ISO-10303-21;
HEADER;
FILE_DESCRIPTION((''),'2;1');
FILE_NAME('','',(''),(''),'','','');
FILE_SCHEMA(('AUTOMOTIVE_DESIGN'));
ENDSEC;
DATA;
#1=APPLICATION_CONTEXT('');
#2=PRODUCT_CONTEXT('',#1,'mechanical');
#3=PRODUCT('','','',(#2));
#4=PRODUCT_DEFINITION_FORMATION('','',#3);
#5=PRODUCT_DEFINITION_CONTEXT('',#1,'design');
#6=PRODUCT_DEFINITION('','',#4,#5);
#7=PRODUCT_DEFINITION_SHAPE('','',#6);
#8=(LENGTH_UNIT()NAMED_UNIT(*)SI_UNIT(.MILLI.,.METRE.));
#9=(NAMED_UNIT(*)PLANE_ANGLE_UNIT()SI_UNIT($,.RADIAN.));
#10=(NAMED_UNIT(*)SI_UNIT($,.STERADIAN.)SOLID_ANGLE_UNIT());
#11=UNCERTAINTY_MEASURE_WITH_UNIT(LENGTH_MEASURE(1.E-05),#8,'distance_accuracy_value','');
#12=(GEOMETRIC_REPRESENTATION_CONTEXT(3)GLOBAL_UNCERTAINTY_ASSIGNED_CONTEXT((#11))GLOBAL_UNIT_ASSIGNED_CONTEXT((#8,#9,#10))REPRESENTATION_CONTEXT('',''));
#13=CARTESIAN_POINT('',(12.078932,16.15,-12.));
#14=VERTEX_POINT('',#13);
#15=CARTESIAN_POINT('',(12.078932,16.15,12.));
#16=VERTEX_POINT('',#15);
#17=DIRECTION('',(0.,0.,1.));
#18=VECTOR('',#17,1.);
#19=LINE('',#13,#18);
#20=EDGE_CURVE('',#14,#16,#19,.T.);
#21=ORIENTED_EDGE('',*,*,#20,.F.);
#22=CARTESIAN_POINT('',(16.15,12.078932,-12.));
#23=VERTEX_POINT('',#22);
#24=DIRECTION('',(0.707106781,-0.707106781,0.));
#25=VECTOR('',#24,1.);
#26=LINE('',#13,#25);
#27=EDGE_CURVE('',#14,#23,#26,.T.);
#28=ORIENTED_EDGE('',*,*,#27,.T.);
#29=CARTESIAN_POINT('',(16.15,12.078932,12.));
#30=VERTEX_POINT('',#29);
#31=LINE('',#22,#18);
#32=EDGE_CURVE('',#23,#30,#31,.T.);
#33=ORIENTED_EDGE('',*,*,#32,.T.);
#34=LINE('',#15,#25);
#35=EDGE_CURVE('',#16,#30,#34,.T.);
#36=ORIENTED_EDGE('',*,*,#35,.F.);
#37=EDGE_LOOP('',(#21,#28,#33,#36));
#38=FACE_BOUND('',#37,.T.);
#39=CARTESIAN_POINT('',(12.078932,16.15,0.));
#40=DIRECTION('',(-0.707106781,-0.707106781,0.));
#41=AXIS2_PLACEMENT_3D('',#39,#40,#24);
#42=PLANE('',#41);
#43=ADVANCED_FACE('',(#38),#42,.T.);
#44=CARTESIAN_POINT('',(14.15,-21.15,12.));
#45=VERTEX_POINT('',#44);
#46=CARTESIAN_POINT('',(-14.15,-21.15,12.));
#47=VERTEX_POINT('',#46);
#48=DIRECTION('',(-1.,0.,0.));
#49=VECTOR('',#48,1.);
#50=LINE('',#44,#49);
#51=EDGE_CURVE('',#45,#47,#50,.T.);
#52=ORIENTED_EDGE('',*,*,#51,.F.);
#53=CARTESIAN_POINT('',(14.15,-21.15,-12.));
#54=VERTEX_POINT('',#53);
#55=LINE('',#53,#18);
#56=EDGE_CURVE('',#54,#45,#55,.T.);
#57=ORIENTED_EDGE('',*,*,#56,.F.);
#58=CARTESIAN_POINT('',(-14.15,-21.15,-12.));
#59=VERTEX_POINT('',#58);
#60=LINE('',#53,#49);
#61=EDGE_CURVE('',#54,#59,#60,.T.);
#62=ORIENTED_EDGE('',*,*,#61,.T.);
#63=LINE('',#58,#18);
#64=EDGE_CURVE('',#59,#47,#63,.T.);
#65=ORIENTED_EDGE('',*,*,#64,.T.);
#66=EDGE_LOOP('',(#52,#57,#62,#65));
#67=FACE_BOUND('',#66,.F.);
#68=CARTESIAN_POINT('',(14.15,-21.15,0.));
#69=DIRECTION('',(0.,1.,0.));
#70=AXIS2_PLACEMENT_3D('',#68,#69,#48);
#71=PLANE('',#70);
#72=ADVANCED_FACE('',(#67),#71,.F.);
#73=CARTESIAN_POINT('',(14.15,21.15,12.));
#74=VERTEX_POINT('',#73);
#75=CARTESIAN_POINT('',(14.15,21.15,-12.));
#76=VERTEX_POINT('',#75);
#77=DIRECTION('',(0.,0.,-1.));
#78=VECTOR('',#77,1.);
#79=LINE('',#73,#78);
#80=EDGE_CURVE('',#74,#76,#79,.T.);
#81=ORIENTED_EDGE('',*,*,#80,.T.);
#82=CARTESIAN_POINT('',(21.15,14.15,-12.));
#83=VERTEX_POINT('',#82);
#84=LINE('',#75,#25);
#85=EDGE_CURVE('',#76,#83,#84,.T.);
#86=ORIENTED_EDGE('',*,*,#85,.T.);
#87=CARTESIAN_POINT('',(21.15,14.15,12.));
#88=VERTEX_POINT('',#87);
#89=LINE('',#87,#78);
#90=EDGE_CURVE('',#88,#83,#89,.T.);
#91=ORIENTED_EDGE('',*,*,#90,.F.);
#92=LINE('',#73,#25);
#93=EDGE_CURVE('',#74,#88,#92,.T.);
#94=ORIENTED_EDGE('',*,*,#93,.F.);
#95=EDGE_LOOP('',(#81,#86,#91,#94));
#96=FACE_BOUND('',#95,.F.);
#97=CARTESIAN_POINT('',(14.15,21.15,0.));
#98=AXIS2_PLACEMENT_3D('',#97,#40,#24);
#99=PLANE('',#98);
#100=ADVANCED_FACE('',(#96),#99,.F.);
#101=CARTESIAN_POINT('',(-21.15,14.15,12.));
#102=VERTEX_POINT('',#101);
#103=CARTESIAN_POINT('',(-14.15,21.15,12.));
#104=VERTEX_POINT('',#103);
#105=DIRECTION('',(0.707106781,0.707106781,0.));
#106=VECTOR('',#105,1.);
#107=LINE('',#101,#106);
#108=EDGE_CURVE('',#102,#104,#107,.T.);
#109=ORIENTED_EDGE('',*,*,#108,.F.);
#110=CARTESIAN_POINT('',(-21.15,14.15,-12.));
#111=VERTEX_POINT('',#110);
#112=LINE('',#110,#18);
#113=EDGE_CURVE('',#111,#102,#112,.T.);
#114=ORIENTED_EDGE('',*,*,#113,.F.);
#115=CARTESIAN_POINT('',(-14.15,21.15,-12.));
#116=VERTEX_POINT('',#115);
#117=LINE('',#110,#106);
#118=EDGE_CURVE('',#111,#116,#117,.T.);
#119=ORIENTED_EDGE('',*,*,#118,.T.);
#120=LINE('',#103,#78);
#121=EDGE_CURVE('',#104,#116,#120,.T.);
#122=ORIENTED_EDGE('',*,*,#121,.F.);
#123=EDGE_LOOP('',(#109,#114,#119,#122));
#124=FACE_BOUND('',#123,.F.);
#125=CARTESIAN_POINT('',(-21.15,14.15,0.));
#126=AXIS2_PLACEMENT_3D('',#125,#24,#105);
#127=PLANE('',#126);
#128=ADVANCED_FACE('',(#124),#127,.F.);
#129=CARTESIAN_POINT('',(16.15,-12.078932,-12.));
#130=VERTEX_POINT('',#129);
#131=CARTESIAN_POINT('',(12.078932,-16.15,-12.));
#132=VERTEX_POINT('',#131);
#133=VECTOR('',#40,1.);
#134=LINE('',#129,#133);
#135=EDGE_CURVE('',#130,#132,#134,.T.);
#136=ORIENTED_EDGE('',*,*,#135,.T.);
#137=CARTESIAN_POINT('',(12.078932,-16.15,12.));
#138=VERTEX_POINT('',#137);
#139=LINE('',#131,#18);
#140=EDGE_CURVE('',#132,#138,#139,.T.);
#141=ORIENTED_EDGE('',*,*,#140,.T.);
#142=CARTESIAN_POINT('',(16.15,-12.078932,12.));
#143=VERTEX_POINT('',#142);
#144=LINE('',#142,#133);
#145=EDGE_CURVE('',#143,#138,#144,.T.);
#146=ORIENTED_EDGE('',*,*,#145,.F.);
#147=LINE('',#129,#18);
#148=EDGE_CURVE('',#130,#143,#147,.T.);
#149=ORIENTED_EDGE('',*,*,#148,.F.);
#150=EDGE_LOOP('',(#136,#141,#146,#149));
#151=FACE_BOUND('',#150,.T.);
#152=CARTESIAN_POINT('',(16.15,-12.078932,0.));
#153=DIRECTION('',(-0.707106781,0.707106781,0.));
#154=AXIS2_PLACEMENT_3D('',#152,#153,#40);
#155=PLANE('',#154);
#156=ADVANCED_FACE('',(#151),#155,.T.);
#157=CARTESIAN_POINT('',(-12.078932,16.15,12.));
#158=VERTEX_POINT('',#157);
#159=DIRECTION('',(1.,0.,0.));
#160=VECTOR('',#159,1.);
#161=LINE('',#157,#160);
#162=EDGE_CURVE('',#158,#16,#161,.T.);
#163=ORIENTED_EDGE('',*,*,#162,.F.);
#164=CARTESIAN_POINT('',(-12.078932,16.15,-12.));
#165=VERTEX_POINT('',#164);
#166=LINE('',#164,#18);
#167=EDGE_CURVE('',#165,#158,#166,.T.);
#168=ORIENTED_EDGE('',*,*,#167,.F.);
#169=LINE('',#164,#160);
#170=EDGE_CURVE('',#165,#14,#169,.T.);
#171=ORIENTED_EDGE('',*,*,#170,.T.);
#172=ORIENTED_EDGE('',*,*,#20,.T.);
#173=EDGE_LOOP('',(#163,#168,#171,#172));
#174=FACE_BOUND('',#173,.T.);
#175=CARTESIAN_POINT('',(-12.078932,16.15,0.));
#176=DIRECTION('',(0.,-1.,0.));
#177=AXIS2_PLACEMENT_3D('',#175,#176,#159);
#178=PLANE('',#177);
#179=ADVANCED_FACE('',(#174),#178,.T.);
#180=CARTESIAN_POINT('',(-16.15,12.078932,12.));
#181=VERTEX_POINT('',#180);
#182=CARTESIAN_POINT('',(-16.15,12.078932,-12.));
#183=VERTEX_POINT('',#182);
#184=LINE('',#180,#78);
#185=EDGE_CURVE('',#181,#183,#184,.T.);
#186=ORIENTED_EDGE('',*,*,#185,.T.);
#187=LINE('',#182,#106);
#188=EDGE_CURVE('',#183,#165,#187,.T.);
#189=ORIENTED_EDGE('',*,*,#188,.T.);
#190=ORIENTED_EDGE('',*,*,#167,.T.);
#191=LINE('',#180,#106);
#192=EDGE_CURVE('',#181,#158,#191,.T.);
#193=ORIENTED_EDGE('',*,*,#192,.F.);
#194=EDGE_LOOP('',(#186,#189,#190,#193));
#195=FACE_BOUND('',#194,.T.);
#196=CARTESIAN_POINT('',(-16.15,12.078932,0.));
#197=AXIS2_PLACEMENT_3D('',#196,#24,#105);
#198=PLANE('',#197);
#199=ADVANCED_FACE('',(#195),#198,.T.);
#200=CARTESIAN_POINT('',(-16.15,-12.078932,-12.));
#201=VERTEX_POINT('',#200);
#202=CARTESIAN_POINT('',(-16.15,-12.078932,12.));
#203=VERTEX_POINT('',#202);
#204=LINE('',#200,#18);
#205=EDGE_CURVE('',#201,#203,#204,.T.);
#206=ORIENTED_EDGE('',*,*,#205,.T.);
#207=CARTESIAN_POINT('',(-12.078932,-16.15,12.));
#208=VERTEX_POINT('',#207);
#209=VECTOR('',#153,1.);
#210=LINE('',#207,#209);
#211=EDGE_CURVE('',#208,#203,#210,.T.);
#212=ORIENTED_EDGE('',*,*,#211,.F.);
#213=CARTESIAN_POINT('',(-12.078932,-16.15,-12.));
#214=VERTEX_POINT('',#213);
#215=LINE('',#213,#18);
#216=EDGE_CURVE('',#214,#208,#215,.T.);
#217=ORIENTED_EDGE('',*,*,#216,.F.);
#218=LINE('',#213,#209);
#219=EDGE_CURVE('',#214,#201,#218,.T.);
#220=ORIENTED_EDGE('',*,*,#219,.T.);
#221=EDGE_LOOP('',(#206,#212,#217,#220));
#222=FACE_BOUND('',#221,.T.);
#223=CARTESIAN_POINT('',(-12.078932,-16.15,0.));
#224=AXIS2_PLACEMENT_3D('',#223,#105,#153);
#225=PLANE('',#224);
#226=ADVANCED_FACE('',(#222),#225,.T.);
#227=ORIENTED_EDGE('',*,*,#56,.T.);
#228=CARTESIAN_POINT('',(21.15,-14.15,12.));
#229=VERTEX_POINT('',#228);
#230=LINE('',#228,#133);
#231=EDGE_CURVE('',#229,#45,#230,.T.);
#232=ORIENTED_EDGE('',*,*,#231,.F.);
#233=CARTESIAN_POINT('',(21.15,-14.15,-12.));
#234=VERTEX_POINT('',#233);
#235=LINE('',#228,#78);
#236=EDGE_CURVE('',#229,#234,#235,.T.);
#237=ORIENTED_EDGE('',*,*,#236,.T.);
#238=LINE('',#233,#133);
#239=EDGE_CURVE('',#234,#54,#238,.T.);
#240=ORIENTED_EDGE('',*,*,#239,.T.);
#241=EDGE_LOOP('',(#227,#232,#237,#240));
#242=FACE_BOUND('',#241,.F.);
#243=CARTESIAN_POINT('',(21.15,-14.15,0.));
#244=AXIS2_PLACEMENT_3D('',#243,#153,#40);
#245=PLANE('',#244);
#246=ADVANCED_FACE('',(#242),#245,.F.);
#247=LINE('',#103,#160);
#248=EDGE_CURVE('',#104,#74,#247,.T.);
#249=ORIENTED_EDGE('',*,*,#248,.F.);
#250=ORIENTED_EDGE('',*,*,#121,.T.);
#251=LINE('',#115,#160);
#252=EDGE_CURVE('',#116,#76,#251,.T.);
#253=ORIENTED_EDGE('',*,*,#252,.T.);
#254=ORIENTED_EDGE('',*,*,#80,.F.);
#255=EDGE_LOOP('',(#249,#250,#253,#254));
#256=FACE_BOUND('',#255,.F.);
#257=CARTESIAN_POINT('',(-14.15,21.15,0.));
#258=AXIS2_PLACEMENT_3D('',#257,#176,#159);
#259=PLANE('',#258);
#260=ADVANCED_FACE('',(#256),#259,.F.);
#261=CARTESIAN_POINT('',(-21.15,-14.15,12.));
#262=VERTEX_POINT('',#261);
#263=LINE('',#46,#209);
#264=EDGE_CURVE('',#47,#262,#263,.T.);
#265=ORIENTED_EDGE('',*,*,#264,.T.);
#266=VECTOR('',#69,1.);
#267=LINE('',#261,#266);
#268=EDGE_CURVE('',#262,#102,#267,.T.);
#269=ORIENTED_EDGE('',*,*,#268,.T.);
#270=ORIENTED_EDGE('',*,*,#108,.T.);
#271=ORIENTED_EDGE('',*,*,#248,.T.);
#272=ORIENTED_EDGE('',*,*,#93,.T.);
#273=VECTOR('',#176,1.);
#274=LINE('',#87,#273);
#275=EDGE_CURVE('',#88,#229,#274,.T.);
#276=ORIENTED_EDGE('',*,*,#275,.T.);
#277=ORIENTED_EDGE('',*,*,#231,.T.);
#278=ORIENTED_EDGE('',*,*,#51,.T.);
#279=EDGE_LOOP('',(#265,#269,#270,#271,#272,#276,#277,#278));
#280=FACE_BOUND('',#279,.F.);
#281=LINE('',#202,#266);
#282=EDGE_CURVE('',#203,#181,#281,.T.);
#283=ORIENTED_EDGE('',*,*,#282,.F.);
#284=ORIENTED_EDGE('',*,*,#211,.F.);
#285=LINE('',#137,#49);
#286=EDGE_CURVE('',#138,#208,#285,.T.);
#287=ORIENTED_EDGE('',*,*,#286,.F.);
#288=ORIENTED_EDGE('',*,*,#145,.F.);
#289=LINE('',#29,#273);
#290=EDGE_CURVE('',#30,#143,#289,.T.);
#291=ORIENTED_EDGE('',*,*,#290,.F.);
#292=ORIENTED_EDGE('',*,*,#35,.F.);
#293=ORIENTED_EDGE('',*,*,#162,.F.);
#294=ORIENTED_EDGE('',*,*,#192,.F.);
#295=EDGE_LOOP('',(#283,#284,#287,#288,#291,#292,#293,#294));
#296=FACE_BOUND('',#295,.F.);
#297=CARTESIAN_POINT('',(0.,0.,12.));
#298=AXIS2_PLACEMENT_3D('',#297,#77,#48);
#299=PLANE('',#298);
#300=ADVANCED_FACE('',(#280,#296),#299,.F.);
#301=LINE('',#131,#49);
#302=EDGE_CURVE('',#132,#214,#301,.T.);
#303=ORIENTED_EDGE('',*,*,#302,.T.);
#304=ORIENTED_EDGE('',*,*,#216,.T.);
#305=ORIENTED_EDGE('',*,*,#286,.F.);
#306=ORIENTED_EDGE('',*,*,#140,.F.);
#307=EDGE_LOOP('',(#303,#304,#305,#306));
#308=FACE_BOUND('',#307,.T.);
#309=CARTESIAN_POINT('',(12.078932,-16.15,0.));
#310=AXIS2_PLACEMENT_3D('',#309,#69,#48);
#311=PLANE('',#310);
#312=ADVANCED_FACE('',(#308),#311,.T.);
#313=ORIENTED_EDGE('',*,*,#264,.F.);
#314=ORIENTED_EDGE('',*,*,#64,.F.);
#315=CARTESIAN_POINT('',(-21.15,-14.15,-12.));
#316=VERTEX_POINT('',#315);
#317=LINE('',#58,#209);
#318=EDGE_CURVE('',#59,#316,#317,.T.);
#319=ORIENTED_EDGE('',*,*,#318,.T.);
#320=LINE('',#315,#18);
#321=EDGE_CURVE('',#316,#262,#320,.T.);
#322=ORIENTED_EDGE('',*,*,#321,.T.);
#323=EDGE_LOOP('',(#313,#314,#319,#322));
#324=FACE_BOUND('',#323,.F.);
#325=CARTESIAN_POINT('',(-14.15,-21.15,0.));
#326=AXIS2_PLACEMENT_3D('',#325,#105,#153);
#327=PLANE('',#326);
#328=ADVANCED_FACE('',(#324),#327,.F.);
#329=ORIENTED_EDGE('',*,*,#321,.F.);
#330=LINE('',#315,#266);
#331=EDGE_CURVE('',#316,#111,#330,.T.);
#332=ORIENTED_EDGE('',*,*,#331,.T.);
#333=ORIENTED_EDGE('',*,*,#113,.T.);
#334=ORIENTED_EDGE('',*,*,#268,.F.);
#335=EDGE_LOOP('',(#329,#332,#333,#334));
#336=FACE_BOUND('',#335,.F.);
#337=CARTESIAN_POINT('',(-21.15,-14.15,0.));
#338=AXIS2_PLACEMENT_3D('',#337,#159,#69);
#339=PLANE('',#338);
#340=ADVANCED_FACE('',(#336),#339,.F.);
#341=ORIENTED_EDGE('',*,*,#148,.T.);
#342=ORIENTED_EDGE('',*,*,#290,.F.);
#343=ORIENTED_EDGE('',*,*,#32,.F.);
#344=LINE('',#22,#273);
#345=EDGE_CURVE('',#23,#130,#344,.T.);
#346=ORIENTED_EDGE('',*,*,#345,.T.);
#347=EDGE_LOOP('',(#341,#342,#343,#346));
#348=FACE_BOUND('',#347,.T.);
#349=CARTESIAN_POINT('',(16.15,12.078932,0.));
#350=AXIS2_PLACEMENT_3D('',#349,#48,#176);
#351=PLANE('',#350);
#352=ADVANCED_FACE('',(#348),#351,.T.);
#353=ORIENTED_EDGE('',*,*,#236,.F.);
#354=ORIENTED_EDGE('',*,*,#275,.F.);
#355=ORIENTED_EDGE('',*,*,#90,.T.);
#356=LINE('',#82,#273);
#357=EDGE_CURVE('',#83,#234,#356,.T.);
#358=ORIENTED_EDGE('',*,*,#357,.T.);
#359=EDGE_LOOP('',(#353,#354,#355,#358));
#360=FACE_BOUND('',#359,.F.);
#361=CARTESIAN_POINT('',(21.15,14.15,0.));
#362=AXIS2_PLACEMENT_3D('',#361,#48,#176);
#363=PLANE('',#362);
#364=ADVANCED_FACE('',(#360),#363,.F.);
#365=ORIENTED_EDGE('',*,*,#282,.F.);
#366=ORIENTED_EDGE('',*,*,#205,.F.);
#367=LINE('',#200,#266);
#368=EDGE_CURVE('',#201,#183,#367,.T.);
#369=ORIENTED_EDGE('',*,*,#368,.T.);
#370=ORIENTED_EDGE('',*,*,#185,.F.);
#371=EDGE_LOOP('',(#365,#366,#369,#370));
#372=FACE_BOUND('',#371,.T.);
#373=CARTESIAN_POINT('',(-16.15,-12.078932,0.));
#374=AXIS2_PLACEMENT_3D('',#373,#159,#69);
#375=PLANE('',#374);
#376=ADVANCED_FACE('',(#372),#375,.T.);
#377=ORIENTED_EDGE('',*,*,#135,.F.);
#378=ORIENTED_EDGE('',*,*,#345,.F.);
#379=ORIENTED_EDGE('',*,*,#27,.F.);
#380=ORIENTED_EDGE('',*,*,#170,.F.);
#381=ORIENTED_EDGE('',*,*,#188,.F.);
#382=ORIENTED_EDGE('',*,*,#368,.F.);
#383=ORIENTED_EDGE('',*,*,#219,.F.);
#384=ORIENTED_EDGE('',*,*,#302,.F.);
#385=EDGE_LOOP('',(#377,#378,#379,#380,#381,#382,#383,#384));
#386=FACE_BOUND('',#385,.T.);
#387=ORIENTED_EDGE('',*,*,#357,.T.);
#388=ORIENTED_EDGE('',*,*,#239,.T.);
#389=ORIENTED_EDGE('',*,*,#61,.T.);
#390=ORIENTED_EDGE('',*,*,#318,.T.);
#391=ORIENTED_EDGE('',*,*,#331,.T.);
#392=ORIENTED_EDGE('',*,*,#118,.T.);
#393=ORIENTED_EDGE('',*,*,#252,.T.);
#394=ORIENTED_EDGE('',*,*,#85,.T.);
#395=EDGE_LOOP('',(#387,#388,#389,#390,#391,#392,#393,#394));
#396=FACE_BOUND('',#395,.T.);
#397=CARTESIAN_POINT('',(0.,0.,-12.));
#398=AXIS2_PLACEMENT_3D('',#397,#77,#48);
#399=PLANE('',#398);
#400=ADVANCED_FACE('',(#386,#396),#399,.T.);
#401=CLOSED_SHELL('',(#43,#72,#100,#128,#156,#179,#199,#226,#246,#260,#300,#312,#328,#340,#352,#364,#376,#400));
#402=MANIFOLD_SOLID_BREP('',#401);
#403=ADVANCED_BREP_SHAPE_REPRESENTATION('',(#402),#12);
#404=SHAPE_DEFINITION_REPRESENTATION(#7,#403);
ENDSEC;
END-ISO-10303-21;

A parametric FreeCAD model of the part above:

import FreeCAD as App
import Part
import Sketcher

V = App.Vector
Q = App.Units.Quantity

doc = App.newDocument("Part")
body = doc.addObject("PartDesign::Body", "Body")

# Sketch on XY plane
sketch1 = body.newObject("Sketcher::SketchObject", "Sketch")
sketch1.AttachmentSupport = (doc.getObject("XY_Plane"), [""])
sketch1.MapMode = "FlatFace"
sketch1.addGeometry([
    Part.LineSegment(V(-14, 21, 0), V(-21, 14, 0)),  # 0
    Part.LineSegment(V(-21, 14, 0), V(-21, -14, 0)),  # 1
    Part.LineSegment(V(-21, -14, 0), V(-14, -21, 0)),  # 2
    Part.LineSegment(V(-14, -21, 0), V(14, -21, 0)),  # 3
    Part.LineSegment(V(14, -21, 0), V(21, -14, 0)),  # 4
    Part.LineSegment(V(21, -14, 0), V(21, 14, 0)),  # 5
    Part.LineSegment(V(21, 14, 0), V(14, 21, 0)),  # 6
    Part.LineSegment(V(14, 21, 0), V(-14, 21, 0)),  # 7
    Part.LineSegment(V(-16, 12, 0), V(-12, 16, 0)),  # 8
    Part.LineSegment(V(-12, 16, 0), V(12, 16, 0)),  # 9
    Part.LineSegment(V(12, 16, 0), V(16, 12, 0)),  # 10
    Part.LineSegment(V(16, 12, 0), V(16, -12, 0)),  # 11
    Part.LineSegment(V(16, -12, 0), V(12, -16, 0)),  # 12
    Part.LineSegment(V(12, -16, 0), V(-12, -16, 0)),  # 13
    Part.LineSegment(V(-12, -16, 0), V(-16, -12, 0)),  # 14
    Part.LineSegment(V(-16, -12, 0), V(-16, 12, 0)),  # 15
], False)
sketch1.addConstraint([
    Sketcher.Constraint("Coincident", 0, 2, 1, 1),
    Sketcher.Constraint("Coincident", 1, 2, 2, 1),
    Sketcher.Constraint("Coincident", 2, 2, 3, 1),
    Sketcher.Constraint("Coincident", 3, 2, 4, 1),
    Sketcher.Constraint("Coincident", 4, 2, 5, 1),
    Sketcher.Constraint("Coincident", 5, 2, 6, 1),
    Sketcher.Constraint("Coincident", 6, 2, 7, 1),
    Sketcher.Constraint("Coincident", 7, 2, 0, 1),
    Sketcher.Constraint("Coincident", 8, 2, 9, 1),
    Sketcher.Constraint("Coincident", 9, 2, 10, 1),
    Sketcher.Constraint("Coincident", 10, 2, 11, 1),
    Sketcher.Constraint("Coincident", 11, 2, 12, 1),
    Sketcher.Constraint("Coincident", 12, 2, 13, 1),
    Sketcher.Constraint("Coincident", 13, 2, 14, 1),
    Sketcher.Constraint("Coincident", 14, 2, 15, 1),
    Sketcher.Constraint("Coincident", 15, 2, 8, 1),
    Sketcher.Constraint("Vertical", 1),
    Sketcher.Constraint("Horizontal", 3),
    Sketcher.Constraint("Vertical", 5),
    Sketcher.Constraint("Horizontal", 7),
    Sketcher.Constraint("Horizontal", 9),
    Sketcher.Constraint("Vertical", 11),
    Sketcher.Constraint("Horizontal", 13),
    Sketcher.Constraint("Vertical", 15),
    Sketcher.Constraint("Symmetric", 0, 2, 4, 2, -1, 1),
    Sketcher.Constraint("Symmetric", 2, 2, 6, 2, -1, 1),
    Sketcher.Constraint("Symmetric", 8, 2, 12, 2, -1, 1),
    Sketcher.Constraint("Symmetric", 10, 2, 14, 2, -1, 1),
    Sketcher.Constraint("Perpendicular", 0, 2),
    Sketcher.Constraint("Perpendicular", 2, 4),
    Sketcher.Constraint("Perpendicular", 4, 6),
    Sketcher.Constraint("Perpendicular", 6, 8),
    Sketcher.Constraint("Perpendicular", 8, 10),
    Sketcher.Constraint("Perpendicular", 10, 12),
    Sketcher.Constraint("Perpendicular", 12, 14),
    Sketcher.Constraint("Horizontal", 1, 2, 4, 2),
    Sketcher.Constraint("Horizontal", 11, 2, 14, 2),
    Sketcher.Constraint("Vertical", 3, 2, 6, 2),
    Sketcher.Constraint("Equal", 7, 1),
    Sketcher.Constraint("Equal", 13, 11),
    Sketcher.Constraint("DistanceX", 3, 1, 3, 2, Q("28.3 mm")),
    Sketcher.Constraint("DistanceX", 1, 2, 2, 2, Q("7 mm")),
    Sketcher.Constraint("DistanceY", 8, 2, 7, 2, Q("5 mm")),
    Sketcher.Constraint("Distance", 8, Q("5.757359 mm")),
])
pad1 = body.newObject("PartDesign::Pad", "Pad")
pad1.Profile = sketch1
pad1.Length = 24
pad1.Midplane = True

doc.recompute()
